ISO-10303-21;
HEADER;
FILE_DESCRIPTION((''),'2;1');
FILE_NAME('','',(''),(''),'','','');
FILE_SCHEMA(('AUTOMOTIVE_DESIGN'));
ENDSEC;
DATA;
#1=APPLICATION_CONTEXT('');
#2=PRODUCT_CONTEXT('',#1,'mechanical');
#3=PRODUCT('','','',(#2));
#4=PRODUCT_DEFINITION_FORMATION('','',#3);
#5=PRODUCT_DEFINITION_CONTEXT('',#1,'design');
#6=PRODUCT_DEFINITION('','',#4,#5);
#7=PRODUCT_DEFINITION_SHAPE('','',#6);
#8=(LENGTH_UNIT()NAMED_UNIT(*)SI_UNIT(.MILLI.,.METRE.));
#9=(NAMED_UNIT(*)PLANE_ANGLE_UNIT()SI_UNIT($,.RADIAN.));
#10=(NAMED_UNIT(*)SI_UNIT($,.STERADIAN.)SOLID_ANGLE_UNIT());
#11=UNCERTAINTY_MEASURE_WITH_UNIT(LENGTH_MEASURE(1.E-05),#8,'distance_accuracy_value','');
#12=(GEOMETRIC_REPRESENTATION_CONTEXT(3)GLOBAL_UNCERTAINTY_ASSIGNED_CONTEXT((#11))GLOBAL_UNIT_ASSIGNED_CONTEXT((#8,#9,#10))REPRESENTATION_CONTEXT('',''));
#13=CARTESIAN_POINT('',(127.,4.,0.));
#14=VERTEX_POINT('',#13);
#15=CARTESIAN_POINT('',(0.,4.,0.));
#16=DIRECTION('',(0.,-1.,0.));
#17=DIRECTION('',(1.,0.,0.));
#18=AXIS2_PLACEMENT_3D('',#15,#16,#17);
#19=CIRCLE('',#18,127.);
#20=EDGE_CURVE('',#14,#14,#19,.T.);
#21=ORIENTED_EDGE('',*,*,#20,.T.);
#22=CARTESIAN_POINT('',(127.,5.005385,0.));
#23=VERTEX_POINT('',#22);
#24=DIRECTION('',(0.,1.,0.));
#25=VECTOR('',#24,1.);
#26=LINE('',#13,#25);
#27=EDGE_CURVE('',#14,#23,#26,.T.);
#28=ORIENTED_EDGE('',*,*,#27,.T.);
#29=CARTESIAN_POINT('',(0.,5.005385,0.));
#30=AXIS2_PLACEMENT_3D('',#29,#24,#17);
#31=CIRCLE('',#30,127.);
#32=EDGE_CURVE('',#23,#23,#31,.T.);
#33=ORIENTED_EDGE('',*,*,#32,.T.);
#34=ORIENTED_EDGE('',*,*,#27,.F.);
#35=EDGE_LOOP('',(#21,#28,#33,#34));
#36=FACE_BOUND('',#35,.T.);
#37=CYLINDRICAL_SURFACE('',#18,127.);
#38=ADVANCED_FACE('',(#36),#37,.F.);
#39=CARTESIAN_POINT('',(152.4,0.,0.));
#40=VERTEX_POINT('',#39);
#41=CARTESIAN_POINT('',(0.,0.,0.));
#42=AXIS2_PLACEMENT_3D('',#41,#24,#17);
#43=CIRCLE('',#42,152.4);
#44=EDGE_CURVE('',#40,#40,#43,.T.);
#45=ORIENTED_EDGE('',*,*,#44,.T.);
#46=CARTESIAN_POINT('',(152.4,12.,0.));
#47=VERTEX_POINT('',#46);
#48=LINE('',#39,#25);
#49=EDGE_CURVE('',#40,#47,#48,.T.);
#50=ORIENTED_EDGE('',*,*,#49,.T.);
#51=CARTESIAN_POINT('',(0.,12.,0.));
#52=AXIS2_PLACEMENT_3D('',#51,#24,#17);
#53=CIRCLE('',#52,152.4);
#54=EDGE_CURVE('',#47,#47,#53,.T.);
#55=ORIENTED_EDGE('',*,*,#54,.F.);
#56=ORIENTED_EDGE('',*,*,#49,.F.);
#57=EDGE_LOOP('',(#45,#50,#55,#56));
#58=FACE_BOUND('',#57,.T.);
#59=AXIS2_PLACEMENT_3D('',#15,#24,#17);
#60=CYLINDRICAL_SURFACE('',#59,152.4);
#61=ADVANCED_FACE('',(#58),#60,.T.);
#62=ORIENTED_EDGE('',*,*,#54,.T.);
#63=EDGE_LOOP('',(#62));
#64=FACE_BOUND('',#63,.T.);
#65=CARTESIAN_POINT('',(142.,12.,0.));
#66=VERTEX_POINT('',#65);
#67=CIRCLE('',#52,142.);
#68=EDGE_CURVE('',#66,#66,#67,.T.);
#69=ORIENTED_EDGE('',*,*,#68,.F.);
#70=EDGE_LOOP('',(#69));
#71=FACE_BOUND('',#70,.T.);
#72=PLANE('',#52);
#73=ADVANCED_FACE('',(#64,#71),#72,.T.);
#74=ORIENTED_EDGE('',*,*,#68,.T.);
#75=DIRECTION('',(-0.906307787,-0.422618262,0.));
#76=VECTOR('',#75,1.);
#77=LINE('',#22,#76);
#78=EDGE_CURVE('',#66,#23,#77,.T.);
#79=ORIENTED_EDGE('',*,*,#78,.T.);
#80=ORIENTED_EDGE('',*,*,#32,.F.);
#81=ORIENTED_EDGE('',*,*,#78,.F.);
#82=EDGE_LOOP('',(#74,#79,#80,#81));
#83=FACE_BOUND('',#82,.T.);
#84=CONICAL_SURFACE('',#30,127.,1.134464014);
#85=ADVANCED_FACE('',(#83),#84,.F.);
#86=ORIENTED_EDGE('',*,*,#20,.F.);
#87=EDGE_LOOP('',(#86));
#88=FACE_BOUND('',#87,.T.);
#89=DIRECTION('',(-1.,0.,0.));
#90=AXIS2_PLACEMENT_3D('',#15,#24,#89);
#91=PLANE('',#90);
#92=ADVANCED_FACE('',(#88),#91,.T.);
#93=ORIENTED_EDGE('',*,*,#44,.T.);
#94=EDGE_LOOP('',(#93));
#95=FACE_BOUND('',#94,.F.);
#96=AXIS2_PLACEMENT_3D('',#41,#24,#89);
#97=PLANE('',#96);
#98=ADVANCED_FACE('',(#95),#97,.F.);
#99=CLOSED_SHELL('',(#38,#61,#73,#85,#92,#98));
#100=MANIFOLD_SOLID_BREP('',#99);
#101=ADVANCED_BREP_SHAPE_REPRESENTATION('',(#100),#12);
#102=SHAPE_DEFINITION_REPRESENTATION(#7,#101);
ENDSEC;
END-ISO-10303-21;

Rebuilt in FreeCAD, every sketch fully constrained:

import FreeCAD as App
import Part
import Sketcher

V = App.Vector


def edges_at(feature, points):
    """Names of the edges that pass closest to the given points."""
    edges = feature.Shape.Edges
    near = lambda p: min(range(len(edges)), key=lambda i: edges[i].distToShape(Part.Vertex(*p))[0])
    return sorted({f"Edge{near(p) + 1}" for p in points})

doc = App.newDocument("Part")
body = doc.addObject("PartDesign::Body", "Body")

sketch1 = body.newObject("Sketcher::SketchObject", "Sketch")
sketch1.AttachmentSupport = (doc.getObject("XZ_Plane"), [""])
sketch1.MapMode = "FlatFace"
sketch1.addGeometry(Part.Circle(V(0, 0, 0), V(0, 0, 1), 127), False)
sketch1.addConstraint([
    Sketcher.Constraint("Coincident", 0, 3, -1, 1),
    Sketcher.Constraint("Diameter", 0, 254.0),
])
pad1 = body.newObject("PartDesign::Pad", "Pad")
pad1.Profile = sketch1
pad1.Length = 4
pad1.Reversed = True

sketch2 = body.newObject("Sketcher::SketchObject", "Sketch001")
sketch2.AttachmentSupport = (doc.getObject("XZ_Plane"), [""])
sketch2.MapMode = "FlatFace"
sketch2.AttachmentOffset = App.Placement(V(0, 0, -4), App.Rotation())
sketch2.addGeometry([
    Part.Circle(V(0, 0, 0), V(0, 0, 1), 152),
    Part.Circle(V(0, 0, 0), V(0, 0, 1), 127),
], False)
sketch2.addConstraint([
    Sketcher.Constraint("Coincident", 0, 3, -1, 1),
    Sketcher.Constraint("Coincident", 1, 3, -1, 1),
    Sketcher.Constraint("Diameter", 0, 304.8),
    Sketcher.Constraint("Diameter", 1, 254.0),
])
pad2 = body.newObject("PartDesign::Pad", "Pad001")
pad2.Profile = sketch2
pad2.Type = "TwoLengths"
pad2.Length = 8
pad2.Length2 = 4
pad2.Reversed = True
doc.recompute()

chamfer = body.newObject("PartDesign::Chamfer", "Chamfer")
chamfer.Base = (pad2, edges_at(pad2, [(-127, 12, 0)]))
chamfer.ChamferType = "Distance and Angle"
chamfer.Size = 15
chamfer.Angle = 25

doc.recompute()
